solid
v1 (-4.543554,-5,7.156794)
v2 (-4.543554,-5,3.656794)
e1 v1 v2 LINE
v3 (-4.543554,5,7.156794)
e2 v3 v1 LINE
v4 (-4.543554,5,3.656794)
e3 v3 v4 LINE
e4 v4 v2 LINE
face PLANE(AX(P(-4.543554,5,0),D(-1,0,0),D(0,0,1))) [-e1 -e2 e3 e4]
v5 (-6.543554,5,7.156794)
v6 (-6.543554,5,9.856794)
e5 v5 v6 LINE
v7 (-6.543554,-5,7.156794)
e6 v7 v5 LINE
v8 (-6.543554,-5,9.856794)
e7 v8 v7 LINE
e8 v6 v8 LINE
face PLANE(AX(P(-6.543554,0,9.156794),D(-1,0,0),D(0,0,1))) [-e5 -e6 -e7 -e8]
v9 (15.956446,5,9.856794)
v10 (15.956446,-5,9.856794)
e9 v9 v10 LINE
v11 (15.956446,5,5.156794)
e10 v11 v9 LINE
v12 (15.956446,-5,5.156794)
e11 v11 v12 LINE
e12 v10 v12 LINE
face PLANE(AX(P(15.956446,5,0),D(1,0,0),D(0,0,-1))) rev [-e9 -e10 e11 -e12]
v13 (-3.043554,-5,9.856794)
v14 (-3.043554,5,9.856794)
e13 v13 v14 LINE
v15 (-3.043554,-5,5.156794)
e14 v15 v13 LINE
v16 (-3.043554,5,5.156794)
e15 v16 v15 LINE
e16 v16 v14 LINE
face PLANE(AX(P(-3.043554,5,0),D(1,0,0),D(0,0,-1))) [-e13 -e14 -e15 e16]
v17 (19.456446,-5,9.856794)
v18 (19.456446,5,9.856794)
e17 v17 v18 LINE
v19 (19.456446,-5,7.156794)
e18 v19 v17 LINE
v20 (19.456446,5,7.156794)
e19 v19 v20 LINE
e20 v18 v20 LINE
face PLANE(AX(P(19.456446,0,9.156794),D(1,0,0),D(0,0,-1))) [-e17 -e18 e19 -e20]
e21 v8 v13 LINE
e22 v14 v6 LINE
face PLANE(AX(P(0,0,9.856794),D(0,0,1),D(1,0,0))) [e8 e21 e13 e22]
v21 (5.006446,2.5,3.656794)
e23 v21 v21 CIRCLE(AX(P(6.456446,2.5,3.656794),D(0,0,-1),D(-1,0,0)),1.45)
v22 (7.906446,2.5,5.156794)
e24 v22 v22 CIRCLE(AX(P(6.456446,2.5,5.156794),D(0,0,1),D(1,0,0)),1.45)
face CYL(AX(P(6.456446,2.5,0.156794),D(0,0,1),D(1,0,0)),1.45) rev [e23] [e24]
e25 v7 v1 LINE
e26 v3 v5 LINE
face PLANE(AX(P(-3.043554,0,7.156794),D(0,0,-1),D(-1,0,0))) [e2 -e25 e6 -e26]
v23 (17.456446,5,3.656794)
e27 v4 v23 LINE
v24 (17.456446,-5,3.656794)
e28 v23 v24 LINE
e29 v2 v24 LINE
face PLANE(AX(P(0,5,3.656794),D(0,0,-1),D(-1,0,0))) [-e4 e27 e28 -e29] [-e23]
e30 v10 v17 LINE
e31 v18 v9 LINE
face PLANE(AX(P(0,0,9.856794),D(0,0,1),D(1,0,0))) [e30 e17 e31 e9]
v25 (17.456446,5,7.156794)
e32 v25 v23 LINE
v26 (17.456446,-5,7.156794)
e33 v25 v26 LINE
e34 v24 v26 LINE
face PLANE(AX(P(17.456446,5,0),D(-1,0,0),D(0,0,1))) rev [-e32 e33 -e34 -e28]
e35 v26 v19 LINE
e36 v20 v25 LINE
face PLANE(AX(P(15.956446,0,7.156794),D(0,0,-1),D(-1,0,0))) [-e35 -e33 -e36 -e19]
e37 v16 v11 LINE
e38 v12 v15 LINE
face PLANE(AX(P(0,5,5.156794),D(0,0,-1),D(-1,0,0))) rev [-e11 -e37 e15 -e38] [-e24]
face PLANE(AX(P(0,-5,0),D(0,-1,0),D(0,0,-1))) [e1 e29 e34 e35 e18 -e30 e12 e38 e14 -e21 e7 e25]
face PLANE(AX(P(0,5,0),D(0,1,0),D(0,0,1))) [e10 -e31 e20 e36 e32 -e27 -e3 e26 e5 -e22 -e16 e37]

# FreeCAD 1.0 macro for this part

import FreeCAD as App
import Part
import Sketcher
from FreeCAD import Vector
Q = App.Units.Quantity


def add_polygon(sketch, points):
    """Adds a closed chain of lines whose ends are joined by coincident constraints."""
    first, n = sketch.GeometryCount, len(points)
    for a, b in zip(points, points[1:] + points[:1]):
        sketch.addGeometry(Part.LineSegment(App.Vector(*a, 0), App.Vector(*b, 0)), False)
    for i in range(n):
        sketch.addConstraint(Sketcher.Constraint("Coincident", first + i, 2, first + (i + 1) % n, 1))

doc = App.newDocument("Part")
body = doc.addObject("PartDesign::Body", "Body")

# Sketch on XZ plane
sketch1 = body.newObject("Sketcher::SketchObject", "Sketch")
sketch1.AttachmentSupport = (doc.getObject("XZ_Plane"), [""])
sketch1.MapMode = "FlatFace"
add_polygon(sketch1, [(-4.543554, 3.656794), (-4.543554, 9.156794), (-3.043554, 9.156794), (-3.043554, 5.156794), (15.956446, 5.156794), (15.956446, 9.156794), (17.456446, 9.156794), (17.456446, 3.656794)])  # lines 0-7
sketch1.addConstraint([
    Sketcher.Constraint("Vertical", 0),
    Sketcher.Constraint("Horizontal", 1),
    Sketcher.Constraint("Vertical", 2),
    Sketcher.Constraint("Horizontal", 3),
    Sketcher.Constraint("Vertical", 4),
    Sketcher.Constraint("Horizontal", 5),
    Sketcher.Constraint("Vertical", 6),
    Sketcher.Constraint("Horizontal", 7),
    Sketcher.Constraint("Horizontal", 1, 2, 4, 2),
    Sketcher.Constraint("Equal", 1, 5),
    Sketcher.Constraint("DistanceX", 3, 1, 3, 2, Q("19 mm")),
    Sketcher.Constraint("DistanceX", 7, 2, 7, 1, Q("22 mm")),
    Sketcher.Constraint("DistanceY", 2, 2, 2, 1, Q("4 mm")),
    Sketcher.Constraint("DistanceY", 0, 1, 0, 2, Q("5.5 mm")),
    Sketcher.Constraint("DistanceX", 0, 2, -1, 1, Q("4.543554 mm")),
    Sketcher.Constraint("DistanceY", -1, 1, 0, 2, Q("9.156794 mm")),
])
pad1 = body.newObject("PartDesign::Pad", "Pad")
pad1.Profile = sketch1
pad1.Length = 5
pad1.Reversed = True

# Sketch on XZ plane
sketch2 = body.newObject("Sketcher::SketchObject", "Sketch001")
sketch2.AttachmentSupport = (doc.getObject("XZ_Plane"), [""])
sketch2.MapMode = "FlatFace"
sketch2.AttachmentOffset = App.Placement(Vector(0, 0, -5), App.Rotation())
add_polygon(sketch2, [(-6.543554, 7.156794), (-6.543554, 9.156794), (-3.043554, 9.156794), (-3.043554, 7.156794)])  # lines 0-3
add_polygon(sketch2, [(15.956446, 7.156794), (15.956446, 9.156794), (19.456446, 9.156794), (19.456446, 7.156794)])  # lines 4-7
sketch2.addConstraint([
    Sketcher.Constraint("Vertical", 0),
    Sketcher.Constraint("Horizontal", 1),
    Sketcher.Constraint("Vertical", 2),
    Sketcher.Constraint("Horizontal", 3),
    Sketcher.Constraint("Vertical", 4),
    Sketcher.Constraint("Horizontal", 5),
    Sketcher.Constraint("Vertical", 6),
    Sketcher.Constraint("Horizontal", 7),
    Sketcher.Constraint("Horizontal", 1, 2, 4, 2),
    Sketcher.Constraint("Horizontal", 3, 2, 6, 2),
    Sketcher.Constraint("Equal", 3, 5),
    Sketcher.Constraint("DistanceY", 0, 1, 0, 2, Q("2 mm")),
    Sketcher.Constraint("DistanceX", 1, 1, 1, 2, Q("3.5 mm")),
    Sketcher.Constraint("DistanceX", 1, 2, 4, 2, Q("19 mm")),
    Sketcher.Constraint("DistanceX", 0, 2, -1, 1, Q("6.543554 mm")),
    Sketcher.Constraint("DistanceY", -1, 1, 0, 2, Q("9.156794 mm")),
])
pad2 = body.newObject("PartDesign::Pad", "Pad001")
pad2.Profile = sketch2
pad2.Length = 5

# Sketch on XY plane
sketch3 = body.newObject("Sketcher::SketchObject", "Sketch002")
sketch3.AttachmentSupport = (doc.getObject("XY_Plane"), [""])
sketch3.MapMode = "FlatFace"
sketch3.AttachmentOffset = App.Placement(Vector(0, 0, 5.156794), App.Rotation())
sketch3.addGeometry(Part.Circle(Vector(6.456446, 2.5, 0), Vector(0, 0, 1), 1.45), False)
sketch3.addConstraint([
    Sketcher.Constraint("Diameter", 0, Q("2.9 mm")),
    Sketcher.Constraint("DistanceY", -1, 1, 0, 3, Q("2.5 mm")),
    Sketcher.Constraint("DistanceX", -1, 1, 0, 3, Q("6.456446 mm")),
])
pocket1 = body.newObject("PartDesign::Pocket", "Pocket")
pocket1.Profile = sketch3
pocket1.Length = 5

# Sketch on XZ plane
sketch4 = body.newObject("Sketcher::SketchObject", "Sketch003")
sketch4.AttachmentSupport = (doc.getObject("XZ_Plane"), [""])
sketch4.MapMode = "FlatFace"
add_polygon(sketch4, [(17.456446, 3.656794), (17.456446, 7.156794), (19.456446, 7.156794), (19.456446, 9.156794), (15.956446, 9.156794), (15.956446, 5.156794), (-3.043554, 5.156794), (-3.043554, 9.156794), (-6.543554, 9.156794), (-6.543554, 7.156794), (-4.543554, 7.156794), (-4.543554, 3.656794)])  # lines 0-11
sketch4.addConstraint([
    Sketcher.Constraint("Vertical", 0),
    Sketcher.Constraint("Horizontal", 1),
    Sketcher.Constraint("Vertical", 2),
    Sketcher.Constraint("Horizontal", 3),
    Sketcher.Constraint("Vertical", 4),
    Sketcher.Constraint("Horizontal", 5),
    Sketcher.Constraint("Vertical", 6),
    Sketcher.Constraint("Horizontal", 7),
    Sketcher.Constraint("Vertical", 8),
    Sketcher.Constraint("Horizontal", 9),
    Sketcher.Constraint("Vertical", 10),
    Sketcher.Constraint("Horizontal", 11),
    Sketcher.Constraint("Horizontal", 3, 2, 6, 2),
    Sketcher.Constraint("Horizontal", 1, 2, 8, 2),
    Sketcher.Constraint("Equal", 3, 7),
    Sketcher.Constraint("Equal", 1, 9),
    Sketcher.Constraint("Equal", 7, 0),
    Sketcher.Constraint("Equal", 9, 2),
    Sketcher.Constraint("DistanceX", 1, 1, 1, 2, Q("2 mm")),
    Sketcher.Constraint("DistanceX", 5, 2, 5, 1, Q("19 mm")),
    Sketcher.Constraint("DistanceX", 11, 1, 11, 2, Q("22 mm")),
    Sketcher.Constraint("DistanceY", 4, 2, 4, 1, Q("4 mm")),
    Sketcher.Constraint("DistanceX", -1, 1, 0, 2, Q("17.456446 mm")),
    Sketcher.Constraint("DistanceY", -1, 1, 0, 2, Q("7.156794 mm")),
])
pad3 = body.newObject("PartDesign::Pad", "Pad002")
pad3.Profile = sketch4
pad3.Length = 5

# Sketch on XY plane
sketch5 = body.newObject("Sketcher::SketchObject", "Sketch004")
sketch5.AttachmentSupport = (doc.getObject("XY_Plane"), [""])
sketch5.MapMode = "FlatFace"
sketch5.AttachmentOffset = App.Placement(Vector(0, 0, 9.156794), App.Rotation())
add_polygon(sketch5, [(15.956446, 5), (15.956446, -5), (19.456446, -5), (19.456446, 5)])  # lines 0-3
add_polygon(sketch5, [(-6.543554, 5), (-6.543554, -5), (-3.043554, -5), (-3.043554, 5)])  # lines 4-7
sketch5.addConstraint([
    Sketcher.Constraint("Vertical", 0),
    Sketcher.Constraint("Horizontal", 1),
    Sketcher.Constraint("Vertical", 2),
    Sketcher.Constraint("Horizontal", 3),
    Sketcher.Constraint("Vertical", 4),
    Sketcher.Constraint("Horizontal", 5),
    Sketcher.Constraint("Vertical", 6),
    Sketcher.Constraint("Horizontal", 7),
    Sketcher.Constraint("Horizontal", 1, 2, 4, 2),
    Sketcher.Constraint("Horizontal", 3, 2, 6, 2),
    Sketcher.Constraint("Equal", 3, 5),
    Sketcher.Constraint("DistanceY", 0, 2, 0, 1, Q("10 mm")),
    Sketcher.Constraint("DistanceX", 1, 1, 1, 2, Q("3.5 mm")),
    Sketcher.Constraint("DistanceY", 0, 2, -1, 1, Q("5 mm")),
    Sketcher.Constraint("DistanceX", 4, 2, 1, 2, Q("26 mm")),
    Sketcher.Constraint("DistanceX", -1, 1, 0, 2, Q("15.956446 mm")),
])
pad4 = body.newObject("PartDesign::Pad", "Pad003")
pad4.Profile = sketch5
pad4.Length = 0.7

doc.recompute()
